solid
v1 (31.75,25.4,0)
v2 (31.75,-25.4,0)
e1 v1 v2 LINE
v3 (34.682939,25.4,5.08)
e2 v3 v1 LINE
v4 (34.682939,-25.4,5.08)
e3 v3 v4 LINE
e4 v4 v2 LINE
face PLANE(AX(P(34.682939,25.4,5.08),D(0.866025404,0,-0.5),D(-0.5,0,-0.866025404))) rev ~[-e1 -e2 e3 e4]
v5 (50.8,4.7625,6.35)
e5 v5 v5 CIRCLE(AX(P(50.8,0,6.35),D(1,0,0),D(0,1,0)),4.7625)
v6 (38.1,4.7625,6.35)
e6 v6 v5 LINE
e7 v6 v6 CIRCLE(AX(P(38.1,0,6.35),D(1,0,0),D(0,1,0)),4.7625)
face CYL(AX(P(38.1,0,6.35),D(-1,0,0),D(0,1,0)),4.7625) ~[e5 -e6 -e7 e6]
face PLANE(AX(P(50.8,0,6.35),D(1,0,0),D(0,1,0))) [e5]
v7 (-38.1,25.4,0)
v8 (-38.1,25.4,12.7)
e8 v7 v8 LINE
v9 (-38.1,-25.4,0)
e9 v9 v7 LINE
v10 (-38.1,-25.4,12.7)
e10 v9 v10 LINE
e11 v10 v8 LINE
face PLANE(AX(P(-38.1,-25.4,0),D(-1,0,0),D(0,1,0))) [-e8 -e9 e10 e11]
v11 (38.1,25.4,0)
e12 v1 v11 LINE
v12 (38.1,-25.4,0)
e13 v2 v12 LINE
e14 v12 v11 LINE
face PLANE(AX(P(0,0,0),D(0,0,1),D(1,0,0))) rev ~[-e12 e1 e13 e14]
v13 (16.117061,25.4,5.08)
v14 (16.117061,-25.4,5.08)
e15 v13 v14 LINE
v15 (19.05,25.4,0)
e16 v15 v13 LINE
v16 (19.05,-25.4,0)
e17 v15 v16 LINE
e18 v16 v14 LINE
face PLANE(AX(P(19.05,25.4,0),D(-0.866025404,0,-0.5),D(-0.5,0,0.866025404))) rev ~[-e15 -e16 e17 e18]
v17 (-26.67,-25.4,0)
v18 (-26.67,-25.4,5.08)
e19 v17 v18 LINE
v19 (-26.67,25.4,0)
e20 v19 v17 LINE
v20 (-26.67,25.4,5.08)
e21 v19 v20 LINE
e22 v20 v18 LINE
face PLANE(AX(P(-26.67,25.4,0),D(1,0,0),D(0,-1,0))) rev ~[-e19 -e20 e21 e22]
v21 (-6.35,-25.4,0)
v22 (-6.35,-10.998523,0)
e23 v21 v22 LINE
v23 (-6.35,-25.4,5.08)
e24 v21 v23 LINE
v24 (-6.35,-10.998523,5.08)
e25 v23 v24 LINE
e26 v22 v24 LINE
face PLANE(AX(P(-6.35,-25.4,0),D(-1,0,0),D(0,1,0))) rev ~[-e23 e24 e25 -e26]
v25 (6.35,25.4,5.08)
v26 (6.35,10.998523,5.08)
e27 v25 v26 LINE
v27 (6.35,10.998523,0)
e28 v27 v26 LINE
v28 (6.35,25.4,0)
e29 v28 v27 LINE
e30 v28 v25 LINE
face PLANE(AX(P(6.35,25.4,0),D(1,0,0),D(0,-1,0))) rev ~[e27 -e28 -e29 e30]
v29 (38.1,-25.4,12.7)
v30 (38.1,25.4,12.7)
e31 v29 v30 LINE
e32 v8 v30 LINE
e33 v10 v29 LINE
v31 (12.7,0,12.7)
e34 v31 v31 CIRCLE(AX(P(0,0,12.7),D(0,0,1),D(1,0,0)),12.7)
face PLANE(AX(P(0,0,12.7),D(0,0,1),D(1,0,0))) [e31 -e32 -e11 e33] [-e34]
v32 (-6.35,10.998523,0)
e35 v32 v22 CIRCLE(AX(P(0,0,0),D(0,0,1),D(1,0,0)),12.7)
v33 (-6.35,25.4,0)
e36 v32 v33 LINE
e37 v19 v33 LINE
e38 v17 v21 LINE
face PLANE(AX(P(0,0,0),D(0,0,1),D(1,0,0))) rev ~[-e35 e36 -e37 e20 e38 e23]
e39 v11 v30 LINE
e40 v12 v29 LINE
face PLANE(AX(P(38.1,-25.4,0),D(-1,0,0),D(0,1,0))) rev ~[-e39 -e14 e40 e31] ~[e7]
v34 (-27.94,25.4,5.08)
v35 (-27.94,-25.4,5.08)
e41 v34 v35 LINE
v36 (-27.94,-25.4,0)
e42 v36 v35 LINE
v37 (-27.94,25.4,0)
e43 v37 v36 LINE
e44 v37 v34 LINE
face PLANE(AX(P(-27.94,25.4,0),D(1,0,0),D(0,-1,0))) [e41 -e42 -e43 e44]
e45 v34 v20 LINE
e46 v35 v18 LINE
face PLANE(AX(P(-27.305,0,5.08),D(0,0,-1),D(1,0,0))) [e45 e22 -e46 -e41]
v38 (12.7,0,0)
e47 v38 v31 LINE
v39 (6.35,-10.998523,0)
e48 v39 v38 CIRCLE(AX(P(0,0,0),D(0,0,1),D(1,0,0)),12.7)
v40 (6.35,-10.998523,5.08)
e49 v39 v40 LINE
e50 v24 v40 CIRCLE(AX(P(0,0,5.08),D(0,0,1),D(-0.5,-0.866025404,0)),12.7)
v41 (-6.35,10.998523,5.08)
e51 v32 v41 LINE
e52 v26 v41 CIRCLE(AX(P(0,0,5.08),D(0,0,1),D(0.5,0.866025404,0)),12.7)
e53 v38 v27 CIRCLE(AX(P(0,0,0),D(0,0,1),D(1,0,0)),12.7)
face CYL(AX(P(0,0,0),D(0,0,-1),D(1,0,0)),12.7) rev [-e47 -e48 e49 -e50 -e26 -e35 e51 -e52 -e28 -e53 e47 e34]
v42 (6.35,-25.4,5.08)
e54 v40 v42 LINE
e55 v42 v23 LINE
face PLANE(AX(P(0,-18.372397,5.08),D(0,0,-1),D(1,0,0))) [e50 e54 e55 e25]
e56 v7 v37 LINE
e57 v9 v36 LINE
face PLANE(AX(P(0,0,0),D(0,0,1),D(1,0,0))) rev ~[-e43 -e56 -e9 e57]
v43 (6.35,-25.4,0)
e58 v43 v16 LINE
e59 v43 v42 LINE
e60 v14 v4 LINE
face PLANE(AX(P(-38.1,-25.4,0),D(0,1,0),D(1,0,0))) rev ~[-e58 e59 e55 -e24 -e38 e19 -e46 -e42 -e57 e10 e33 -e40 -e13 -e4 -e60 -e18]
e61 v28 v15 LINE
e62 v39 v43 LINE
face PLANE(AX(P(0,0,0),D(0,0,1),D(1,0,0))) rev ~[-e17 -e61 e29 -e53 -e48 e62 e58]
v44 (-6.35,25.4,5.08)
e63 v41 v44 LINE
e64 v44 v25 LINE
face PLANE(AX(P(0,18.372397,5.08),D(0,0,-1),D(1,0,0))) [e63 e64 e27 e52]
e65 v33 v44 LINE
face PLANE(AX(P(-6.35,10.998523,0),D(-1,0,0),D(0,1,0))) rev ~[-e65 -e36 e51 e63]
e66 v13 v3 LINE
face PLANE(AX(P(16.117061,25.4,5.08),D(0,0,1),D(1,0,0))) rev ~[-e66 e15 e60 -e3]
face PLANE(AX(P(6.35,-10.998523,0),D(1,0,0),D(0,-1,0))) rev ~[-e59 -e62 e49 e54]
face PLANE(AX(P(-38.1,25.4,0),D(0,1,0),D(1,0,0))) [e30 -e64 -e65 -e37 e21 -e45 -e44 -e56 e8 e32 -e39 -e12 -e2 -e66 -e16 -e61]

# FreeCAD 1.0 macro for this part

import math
import FreeCAD as App
import Part
import Sketcher

V = App.Vector
Q = App.Units.Quantity


def add_polygon(sketch, points):
    """Adds a closed chain of lines whose ends are joined by coincident constraints."""
    first, n = sketch.GeometryCount, len(points)
    for a, b in zip(points, points[1:] + points[:1]):
        sketch.addGeometry(Part.LineSegment(App.Vector(*a, 0), App.Vector(*b, 0)), False)
    for i in range(n):
        sketch.addConstraint(Sketcher.Constraint("Coincident", first + i, 2, first + (i + 1) % n, 1))

doc = App.newDocument("Part")
params = doc.addObject("Spreadsheet::Sheet", "Params")
for row, (alias, value) in enumerate([
    ("sketch1_diameter", "1 in"),
    ("sketch1_width", "3 in"),
    ("sketch1_height", "2 in"),
    ("pad1_length", "0.5 in"),
    ("sketch2_radius", "0.5 in"),
    ("sketch2_height", "2 in"),
    ("sketch2_width", "0.5 in"),
    ("sketch2_width2", "0.05 in"),
    ("pocket1_length", "0.2 in"),
    ("sketch3_width", "0.5 in"),
    ("sketch4_diameter", "0.375 in"),
    ("pad2_length", "0.5 in"),
], start=1):
    params.set(f"A{row}", alias)
    params.set(f"B{row}", "=" + value)
    params.setAlias(f"B{row}", alias)

body = doc.addObject("PartDesign::Body", "Body")

sketch1 = doc.addObject("Sketcher::SketchObject", "Sketch")
body.addObject(sketch1)
sketch1.AttachmentSupport = (doc.XY_Plane, [""])
sketch1.MapMode = "FlatFace"
add_polygon(sketch1, [(-38.1, 25.4), (-38.1, -25.4), (38.1, -25.4), (38.1, 25.4)])
sketch1.addGeometry(Part.Circle(V(0, 0, 0), V(0, 0, 1), 12.7), False)
sketch1.addConstraint(Sketcher.Constraint("Vertical", 0))
sketch1.addConstraint(Sketcher.Constraint("Horizontal", 1))
sketch1.addConstraint(Sketcher.Constraint("Vertical", 2))
sketch1.addConstraint(Sketcher.Constraint("Horizontal", 3))
sketch1.addConstraint(Sketcher.Constraint("Coincident", 4, 3, -1, 1))
sketch1.addConstraint(Sketcher.Constraint("Symmetric", 0, 2, 2, 2, -1, 1))
sketch1.addConstraint(Sketcher.Constraint("Diameter", 4, Q("1 in")))
sketch1.addConstraint(Sketcher.Constraint("DistanceX", 1, 1, 1, 2, Q("3 in")))
sketch1.addConstraint(Sketcher.Constraint("DistanceY", 0, 2, 0, 1, Q("2 in")))
sketch1.setExpression("Constraints[10]", "Params.sketch1_diameter")
sketch1.setExpression("Constraints[11]", "Params.sketch1_width")
sketch1.setExpression("Constraints[12]", "Params.sketch1_height")
pad1 = doc.addObject("PartDesign::Pad", "Pad")
body.addObject(pad1)
pad1.Profile = sketch1
pad1.setExpression("Length", "Params.pad1_length")

sketch2 = doc.addObject("Sketcher::SketchObject", "Sketch001")
body.addObject(sketch2)
sketch2.AttachmentSupport = (doc.XY_Plane, [""])
sketch2.MapMode = "FlatFace"
add_polygon(sketch2, [(-27.94, -25.4), (-27.94, 25.4), (-26.67, 25.4), (-26.67, -25.4)])
sketch2.addGeometry(Part.LineSegment(V(6.35, -25.4, 0), V(-6.35, -25.4, 0)), False)
sketch2.addGeometry(Part.LineSegment(V(-6.35, -25.4, 0), V(-6.35, -10.998523, 0)), False)
sketch2.addGeometry(Part.ArcOfCircle(Part.Circle(V(0, 0, 0), V(0, 0, 1), 12.7), math.radians(-120), math.radians(-60)), False)
sketch2.addGeometry(Part.LineSegment(V(6.35, -10.998523, 0), V(6.35, -25.4, 0)), False)
sketch2.addGeometry(Part.LineSegment(V(-6.35, 10.998523, 0), V(-6.35, 25.4, 0)), False)
sketch2.addGeometry(Part.LineSegment(V(-6.35, 25.4, 0), V(6.35, 25.4, 0)), False)
sketch2.addGeometry(Part.LineSegment(V(6.35, 25.4, 0), V(6.35, 10.998523, 0)), False)
sketch2.addGeometry(Part.ArcOfCircle(Part.Circle(V(0, 0, 0), V(0, 0, 1), 12.7), math.radians(60), math.radians(120)), False)
sketch2.addConstraint(Sketcher.Constraint("Coincident", 4, 2, 5, 1))
sketch2.addConstraint(Sketcher.Constraint("Coincident", 5, 2, 6, 1))
sketch2.addConstraint(Sketcher.Constraint("Coincident", 6, 2, 7, 1))
sketch2.addConstraint(Sketcher.Constraint("Coincident", 7, 2, 4, 1))
sketch2.addConstraint(Sketcher.Constraint("Coincident", 8, 2, 9, 1))
sketch2.addConstraint(Sketcher.Constraint("Coincident", 9, 2, 10, 1))
sketch2.addConstraint(Sketcher.Constraint("Coincident", 10, 2, 11, 1))
sketch2.addConstraint(Sketcher.Constraint("Coincident", 11, 2, 8, 1))
sketch2.addConstraint(Sketcher.Constraint("Vertical", 0))
sketch2.addConstraint(Sketcher.Constraint("Horizontal", 1))
sketch2.addConstraint(Sketcher.Constraint("Vertical", 2))
sketch2.addConstraint(Sketcher.Constraint("Horizontal", 3))
sketch2.addConstraint(Sketcher.Constraint("Horizontal", 4))
sketch2.addConstraint(Sketcher.Constraint("Vertical", 5))
sketch2.addConstraint(Sketcher.Constraint("Vertical", 7))
sketch2.addConstraint(Sketcher.Constraint("Vertical", 8))
sketch2.addConstraint(Sketcher.Constraint("Horizontal", 9))
sketch2.addConstraint(Sketcher.Constraint("Vertical", 10))
sketch2.addConstraint(Sketcher.Constraint("Coincident", 6, 3, -1, 1))
sketch2.addConstraint(Sketcher.Constraint("Coincident", 11, 3, -1, 1))
sketch2.addConstraint(Sketcher.Constraint("Equal", 6, 11))
sketch2.addConstraint(Sketcher.Constraint("Symmetric", 7, 2, 8, 2, -1, 1))
sketch2.addConstraint(Sketcher.Constraint("Horizontal", 3, 2, 4, 2))
sketch2.addConstraint(Sketcher.Constraint("Horizontal", 5, 2, 6, 2))
sketch2.addConstraint(Sketcher.Constraint("Horizontal", 1, 2, 8, 2))
sketch2.addConstraint(Sketcher.Constraint("Horizontal", 10, 2, 11, 2))
sketch2.addConstraint(Sketcher.Constraint("Radius", 6, Q("0.5 in")))
sketch2.addConstraint(Sketcher.Constraint("DistanceY", 0, 1, 0, 2, Q("2 in")))
sketch2.addConstraint(Sketcher.Constraint("DistanceX", 4, 2, 4, 1, Q("0.5 in")))
sketch2.addConstraint(Sketcher.Constraint("DistanceX", 1, 1, 1, 2, Q("0.05 in")))
sketch2.addConstraint(Sketcher.Constraint("DistanceX", 0, 2, -1, 1, Q("1.1 in")))
sketch2.setExpression("Constraints[30]", "Params.sketch2_radius")
sketch2.setExpression("Constraints[31]", "Params.sketch2_height")
sketch2.setExpression("Constraints[32]", "Params.sketch2_width")
sketch2.setExpression("Constraints[33]", "Params.sketch2_width2")
pocket1 = doc.addObject("PartDesign::Pocket", "Pocket")
body.addObject(pocket1)
pocket1.Profile = sketch2
pocket1.setExpression("Length", "Params.pocket1_length")
pocket1.Reversed = True

sketch3 = doc.addObject("Sketcher::SketchObject", "Sketch002")
body.addObject(sketch3)
sketch3.AttachmentSupport = (doc.XZ_Plane, [""])
sketch3.MapMode = "FlatFace"
sketch3.AttachmentOffset = App.Placement(V(0, 0, -1 * 25.4), App.Rotation())
add_polygon(sketch3, [(31.75, 0), (19.05, 0), (16.117061, 5.08), (34.682939, 5.08)])
sketch3.addConstraint(Sketcher.Constraint("Horizontal", 0))
sketch3.addConstraint(Sketcher.Constraint("Horizontal", 2))
sketch3.addConstraint(Sketcher.Constraint("PointOnObject", 0, 2, -1))
sketch3.addConstraint(Sketcher.Constraint("Equal", 1, 3))
sketch3.addConstraint(Sketcher.Constraint("DistanceX", 0, 2, 0, 1, Q("0.5 in")))
sketch3.addConstraint(Sketcher.Constraint("Angle", 1, Q("120 deg")))
sketch3.addConstraint(Sketcher.Constraint("DistanceY", -1, 1, 1, 2, Q("0.2 in")))
sketch3.addConstraint(Sketcher.Constraint("DistanceX", -1, 1, 0, 2, Q("0.75 in")))
sketch3.setExpression("Constraints[8]", "Params.sketch3_width")
pocket2 = doc.addObject("PartDesign::Pocket", "Pocket001")
body.addObject(pocket2)
pocket2.Profile = sketch3
pocket2.Type = "ThroughAll"
pocket2.Reversed = True

sketch4 = doc.addObject("Sketcher::SketchObject", "Sketch003")
body.addObject(sketch4)
sketch4.AttachmentSupport = (doc.YZ_Plane, [""])
sketch4.MapMode = "FlatFace"
sketch4.AttachmentOffset = App.Placement(V(0, 0, 1.5 * 25.4), App.Rotation())
sketch4.addGeometry(Part.Circle(V(0, 6.35, 0), V(0, 0, 1), 4.7625), False)
sketch4.addConstraint(Sketcher.Constraint("PointOnObject", 0, 3, -2))
sketch4.addConstraint(Sketcher.Constraint("Diameter", 0, Q("0.375 in")))
sketch4.addConstraint(Sketcher.Constraint("DistanceY", -1, 1, 0, 3, Q("0.25 in")))
sketch4.setExpression("Constraints[1]", "Params.sketch4_diameter")
pad2 = doc.addObject("PartDesign::Pad", "Pad001")
body.addObject(pad2)
pad2.Profile = sketch4
pad2.setExpression("Length", "Params.pad2_length")

doc.recompute()
